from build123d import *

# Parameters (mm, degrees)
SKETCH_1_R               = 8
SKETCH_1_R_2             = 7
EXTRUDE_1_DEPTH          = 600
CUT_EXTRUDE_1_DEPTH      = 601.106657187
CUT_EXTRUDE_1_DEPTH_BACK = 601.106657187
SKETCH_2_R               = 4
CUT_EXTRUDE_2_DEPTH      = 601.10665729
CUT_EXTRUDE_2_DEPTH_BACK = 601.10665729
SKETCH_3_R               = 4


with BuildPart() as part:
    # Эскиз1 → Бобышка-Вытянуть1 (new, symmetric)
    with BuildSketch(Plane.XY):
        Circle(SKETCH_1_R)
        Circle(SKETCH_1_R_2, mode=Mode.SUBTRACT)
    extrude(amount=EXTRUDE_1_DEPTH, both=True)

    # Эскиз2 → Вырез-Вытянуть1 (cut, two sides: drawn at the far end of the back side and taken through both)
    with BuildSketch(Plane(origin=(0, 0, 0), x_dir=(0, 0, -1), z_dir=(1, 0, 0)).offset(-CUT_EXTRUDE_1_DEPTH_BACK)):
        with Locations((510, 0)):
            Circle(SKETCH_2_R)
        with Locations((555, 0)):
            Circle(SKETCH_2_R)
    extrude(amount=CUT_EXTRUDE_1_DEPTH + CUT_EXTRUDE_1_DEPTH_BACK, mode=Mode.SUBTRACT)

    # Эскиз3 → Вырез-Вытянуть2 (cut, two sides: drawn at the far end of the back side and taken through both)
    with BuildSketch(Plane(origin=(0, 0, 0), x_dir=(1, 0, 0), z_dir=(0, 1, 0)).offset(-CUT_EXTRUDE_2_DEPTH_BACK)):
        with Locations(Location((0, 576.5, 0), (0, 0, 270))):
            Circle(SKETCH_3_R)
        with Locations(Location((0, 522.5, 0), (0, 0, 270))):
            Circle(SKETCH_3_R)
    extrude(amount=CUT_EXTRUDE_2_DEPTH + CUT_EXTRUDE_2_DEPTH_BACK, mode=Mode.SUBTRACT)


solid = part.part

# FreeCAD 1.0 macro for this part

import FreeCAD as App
import Part
import Sketcher

V = App.Vector

doc = App.newDocument("Part")
body = doc.addObject("PartDesign::Body", "Body")

sketch1 = doc.addObject("Sketcher::SketchObject", "Sketch")
body.addObject(sketch1)
sketch1.AttachmentSupport = (doc.XY_Plane, [""])
sketch1.MapMode = "FlatFace"
sketch1.addGeometry(Part.Circle(V(0, 0, 0), V(0, 0, 1), 8), False)
sketch1.addGeometry(Part.Circle(V(0, 0, 0), V(0, 0, 1), 7), False)
sketch1.addConstraint(Sketcher.Constraint("Coincident", 0, 3, -1, 1))
sketch1.addConstraint(Sketcher.Constraint("Coincident", 1, 3, -1, 1))
sketch1.addConstraint(Sketcher.Constraint("Diameter", 0, 16.0))
sketch1.addConstraint(Sketcher.Constraint("Diameter", 1, 14.0))
pad1 = doc.addObject("PartDesign::Pad", "Pad")
body.addObject(pad1)
pad1.Profile = sketch1
pad1.Length = 1200
pad1.Midplane = True

sketch2 = doc.addObject("Sketcher::SketchObject", "Sketch001")
body.addObject(sketch2)
sketch2.AttachmentSupport = (doc.YZ_Plane, [""])
sketch2.MapMode = "FlatFace"
sketch2.addGeometry(Part.Circle(V(0, -510, 0), V(0, 0, 1), 4), False)
sketch2.addGeometry(Part.Circle(V(0, -555, 0), V(0, 0, 1), 4), False)
sketch2.addConstraint(Sketcher.Constraint("Equal", 0, 1))
sketch2.addConstraint(Sketcher.Constraint("PointOnObject", 0, 3, -2))
sketch2.addConstraint(Sketcher.Constraint("PointOnObject", 1, 3, -2))
sketch2.addConstraint(Sketcher.Constraint("Diameter", 0, 8.0))
sketch2.addConstraint(Sketcher.Constraint("DistanceY", 0, 3, -1, 1, 510.0))
sketch2.addConstraint(Sketcher.Constraint("DistanceY", 1, 3, -1, 1, 555.0))
pocket1 = doc.addObject("PartDesign::Pocket", "Pocket")
body.addObject(pocket1)
pocket1.Profile = sketch2
pocket1.Type = "ThroughAll"
pocket1.Midplane = True

sketch3 = doc.addObject("Sketcher::SketchObject", "Sketch002")
body.addObject(sketch3)
sketch3.AttachmentSupport = (doc.XZ_Plane, [""])
sketch3.MapMode = "FlatFace"
sketch3.addGeometry(Part.Circle(V(0, -576.5, 0), V(0, 0, 1), 4), False)
sketch3.addGeometry(Part.Circle(V(0, -522.5, 0), V(0, 0, 1), 4), False)
sketch3.addConstraint(Sketcher.Constraint("Equal", 0, 1))
sketch3.addConstraint(Sketcher.Constraint("PointOnObject", 0, 3, -2))
sketch3.addConstraint(Sketcher.Constraint("PointOnObject", 1, 3, -2))
sketch3.addConstraint(Sketcher.Constraint("Diameter", 0, 8.0))
sketch3.addConstraint(Sketcher.Constraint("DistanceY", 0, 3, 1, 3, 54.0))
sketch3.addConstraint(Sketcher.Constraint("DistanceY", 0, 3, -1, 1, 576.5))
pocket2 = doc.addObject("PartDesign::Pocket", "Pocket001")
body.addObject(pocket2)
pocket2.Profile = sketch3
pocket2.Type = "ThroughAll"
pocket2.Midplane = True

doc.recompute()
